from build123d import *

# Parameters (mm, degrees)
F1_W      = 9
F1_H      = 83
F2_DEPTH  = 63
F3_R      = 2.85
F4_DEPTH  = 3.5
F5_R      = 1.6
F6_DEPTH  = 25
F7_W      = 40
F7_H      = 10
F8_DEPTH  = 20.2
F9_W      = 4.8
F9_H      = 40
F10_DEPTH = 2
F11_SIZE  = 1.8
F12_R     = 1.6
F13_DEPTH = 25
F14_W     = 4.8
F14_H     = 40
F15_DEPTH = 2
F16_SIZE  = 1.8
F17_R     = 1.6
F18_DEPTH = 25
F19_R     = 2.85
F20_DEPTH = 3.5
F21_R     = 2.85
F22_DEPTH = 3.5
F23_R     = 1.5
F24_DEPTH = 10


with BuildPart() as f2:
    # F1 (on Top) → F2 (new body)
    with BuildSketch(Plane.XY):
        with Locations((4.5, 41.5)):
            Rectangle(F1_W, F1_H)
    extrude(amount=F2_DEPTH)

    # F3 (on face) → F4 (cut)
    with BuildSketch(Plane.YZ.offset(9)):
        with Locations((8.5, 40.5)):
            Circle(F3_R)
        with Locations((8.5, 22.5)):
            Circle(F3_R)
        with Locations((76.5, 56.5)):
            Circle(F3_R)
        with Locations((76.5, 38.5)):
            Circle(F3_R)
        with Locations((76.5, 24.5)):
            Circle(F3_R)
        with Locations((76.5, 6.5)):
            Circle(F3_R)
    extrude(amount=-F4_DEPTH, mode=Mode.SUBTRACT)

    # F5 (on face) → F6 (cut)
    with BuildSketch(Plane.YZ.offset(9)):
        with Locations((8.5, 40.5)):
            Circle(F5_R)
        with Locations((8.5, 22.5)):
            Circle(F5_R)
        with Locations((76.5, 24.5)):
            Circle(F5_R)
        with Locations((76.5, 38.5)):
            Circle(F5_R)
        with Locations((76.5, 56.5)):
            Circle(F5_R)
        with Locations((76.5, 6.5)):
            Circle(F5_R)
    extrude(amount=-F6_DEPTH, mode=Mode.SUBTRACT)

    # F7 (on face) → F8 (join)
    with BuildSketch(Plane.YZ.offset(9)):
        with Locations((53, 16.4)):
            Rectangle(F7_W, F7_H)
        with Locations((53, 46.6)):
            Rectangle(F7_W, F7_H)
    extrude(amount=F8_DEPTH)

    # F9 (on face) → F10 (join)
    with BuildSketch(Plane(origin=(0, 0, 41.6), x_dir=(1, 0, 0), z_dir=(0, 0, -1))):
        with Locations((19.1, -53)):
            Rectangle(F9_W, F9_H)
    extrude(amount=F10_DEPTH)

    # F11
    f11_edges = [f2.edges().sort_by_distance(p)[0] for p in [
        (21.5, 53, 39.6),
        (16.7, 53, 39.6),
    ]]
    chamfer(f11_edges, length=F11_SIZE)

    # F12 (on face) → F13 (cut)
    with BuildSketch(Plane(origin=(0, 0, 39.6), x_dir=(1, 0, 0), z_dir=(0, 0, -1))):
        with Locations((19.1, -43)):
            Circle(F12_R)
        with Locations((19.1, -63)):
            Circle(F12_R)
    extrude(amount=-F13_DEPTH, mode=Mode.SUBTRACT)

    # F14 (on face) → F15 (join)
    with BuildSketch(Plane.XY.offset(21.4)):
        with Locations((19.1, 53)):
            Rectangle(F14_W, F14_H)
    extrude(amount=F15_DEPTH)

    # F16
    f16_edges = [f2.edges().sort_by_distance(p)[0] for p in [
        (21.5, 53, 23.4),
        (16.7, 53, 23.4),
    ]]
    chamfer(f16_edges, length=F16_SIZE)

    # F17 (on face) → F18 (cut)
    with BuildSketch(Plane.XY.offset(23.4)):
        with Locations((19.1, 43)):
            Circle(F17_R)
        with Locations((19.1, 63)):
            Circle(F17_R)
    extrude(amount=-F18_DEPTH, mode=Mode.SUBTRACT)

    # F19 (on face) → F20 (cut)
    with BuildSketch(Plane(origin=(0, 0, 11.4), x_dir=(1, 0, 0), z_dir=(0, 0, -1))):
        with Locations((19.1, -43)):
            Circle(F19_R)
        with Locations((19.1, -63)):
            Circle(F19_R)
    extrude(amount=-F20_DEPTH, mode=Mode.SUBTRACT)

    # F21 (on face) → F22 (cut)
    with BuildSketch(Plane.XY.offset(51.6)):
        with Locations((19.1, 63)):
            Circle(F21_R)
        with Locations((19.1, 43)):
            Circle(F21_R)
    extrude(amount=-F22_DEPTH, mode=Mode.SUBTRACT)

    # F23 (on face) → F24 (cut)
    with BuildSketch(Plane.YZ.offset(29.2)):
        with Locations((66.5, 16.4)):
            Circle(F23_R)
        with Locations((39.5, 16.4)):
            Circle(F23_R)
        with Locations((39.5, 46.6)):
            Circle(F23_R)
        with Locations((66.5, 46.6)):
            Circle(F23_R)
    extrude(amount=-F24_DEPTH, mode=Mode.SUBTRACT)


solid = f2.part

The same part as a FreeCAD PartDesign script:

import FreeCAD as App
import Part
import Sketcher
from FreeCAD import Vector


def edges_at(feature, points):
    """Names of the edges that pass closest to the given points."""
    edges = feature.Shape.Edges
    near = lambda p: min(range(len(edges)), key=lambda i: edges[i].distToShape(Part.Vertex(*p))[0])
    return sorted({f"Edge{near(p) + 1}" for p in points})


def add_polygon(sketch, points):
    """Adds a closed chain of lines whose ends are joined by coincident constraints."""
    first, n = sketch.GeometryCount, len(points)
    for a, b in zip(points, points[1:] + points[:1]):
        sketch.addGeometry(Part.LineSegment(App.Vector(*a, 0), App.Vector(*b, 0)), False)
    for i in range(n):
        sketch.addConstraint(Sketcher.Constraint("Coincident", first + i, 2, first + (i + 1) % n, 1))

doc = App.newDocument("Part")
body = doc.addObject("PartDesign::Body", "Body")

# Sketch on XY plane
sketch1 = body.newObject("Sketcher::SketchObject", "Sketch")
sketch1.AttachmentSupport = (doc.getObject("XY_Plane"), [""])
sketch1.MapMode = "FlatFace"
add_polygon(sketch1, [(0, 83), (0, 0), (9, 0), (9, 83)])  # lines 0-3
sketch1.addConstraint([
    Sketcher.Constraint("Vertical", 0),
    Sketcher.Constraint("Horizontal", 1),
    Sketcher.Constraint("Vertical", 2),
    Sketcher.Constraint("Horizontal", 3),
    Sketcher.Constraint("Coincident", 0, 2, -1, 1),
    Sketcher.Constraint("DistanceX", 1, 1, 1, 2, 9.0),
    Sketcher.Constraint("DistanceY", 0, 2, 0, 1, 83.0),
])
pad1 = body.newObject("PartDesign::Pad", "Pad")
pad1.Profile = sketch1
pad1.Length = 63

# Sketch on YZ plane
sketch2 = body.newObject("Sketcher::SketchObject", "Sketch001")
sketch2.AttachmentSupport = (doc.getObject("YZ_Plane"), [""])
sketch2.MapMode = "FlatFace"
sketch2.AttachmentOffset = App.Placement(Vector(0, 0, 9), App.Rotation())
sketch2.addGeometry([
    Part.Circle(Vector(8.5, 40.5, 0), Vector(0, 0, 1), 2.85),  # 0
    Part.Circle(Vector(8.5, 22.5, 0), Vector(0, 0, 1), 2.85),  # 1
    Part.Circle(Vector(76.5, 56.5, 0), Vector(0, 0, 1), 2.85),  # 2
    Part.Circle(Vector(76.5, 38.5, 0), Vector(0, 0, 1), 2.85),  # 3
    Part.Circle(Vector(76.5, 24.5, 0), Vector(0, 0, 1), 2.85),  # 4
    Part.Circle(Vector(76.5, 6.5, 0), Vector(0, 0, 1), 2.85),  # 5
], False)
sketch2.addConstraint([
    Sketcher.Constraint("Equal", 0, 1),
    Sketcher.Constraint("Equal", 1, 2),
    Sketcher.Constraint("Equal", 2, 3),
    Sketcher.Constraint("Equal", 3, 4),
    Sketcher.Constraint("Equal", 4, 5),
    Sketcher.Constraint("Vertical", 0, 3, 1, 3),
    Sketcher.Constraint("Vertical", 2, 3, 3, 3),
    Sketcher.Constraint("Vertical", 3, 3, 4, 3),
    Sketcher.Constraint("Vertical", 4, 3, 5, 3),
    Sketcher.Constraint("Diameter", 0, 5.7),
    Sketcher.Constraint("DistanceY", 1, 3, 0, 3, 18.0),
    Sketcher.Constraint("DistanceX", 0, 3, 2, 3, 68.0),
    Sketcher.Constraint("DistanceY", 0, 3, 2, 3, 16.0),
    Sketcher.Constraint("DistanceY", 3, 3, 2, 3, 18.0),
    Sketcher.Constraint("DistanceY", 4, 3, 3, 3, 14.0),
    Sketcher.Constraint("DistanceY", 5, 3, 4, 3, 18.0),
    Sketcher.Constraint("DistanceX", -1, 1, 0, 3, 8.5),
    Sketcher.Constraint("DistanceY", -1, 1, 0, 3, 40.5),
])
pocket1 = body.newObject("PartDesign::Pocket", "Pocket")
pocket1.Profile = sketch2
pocket1.Length = 3.5

# Sketch on YZ plane
sketch3 = body.newObject("Sketcher::SketchObject", "Sketch002")
sketch3.AttachmentSupport = (doc.getObject("YZ_Plane"), [""])
sketch3.MapMode = "FlatFace"
sketch3.AttachmentOffset = App.Placement(Vector(0, 0, 9), App.Rotation())
sketch3.addGeometry([
    Part.Circle(Vector(8.5, 40.5, 0), Vector(0, 0, 1), 1.6),  # 0
    Part.Circle(Vector(8.5, 22.5, 0), Vector(0, 0, 1), 1.6),  # 1
    Part.Circle(Vector(76.5, 24.5, 0), Vector(0, 0, 1), 1.6),  # 2
    Part.Circle(Vector(76.5, 38.5, 0), Vector(0, 0, 1), 1.6),  # 3
    Part.Circle(Vector(76.5, 56.5, 0), Vector(0, 0, 1), 1.6),  # 4
    Part.Circle(Vector(76.5, 6.5, 0), Vector(0, 0, 1), 1.6),  # 5
], False)
sketch3.addConstraint([
    Sketcher.Constraint("Equal", 0, 1),
    Sketcher.Constraint("Equal", 1, 2),
    Sketcher.Constraint("Equal", 2, 3),
    Sketcher.Constraint("Equal", 3, 4),
    Sketcher.Constraint("Equal", 4, 5),
    Sketcher.Constraint("Vertical", 0, 3, 1, 3),
    Sketcher.Constraint("Vertical", 2, 3, 3, 3),
    Sketcher.Constraint("Vertical", 3, 3, 4, 3),
    Sketcher.Constraint("Vertical", 4, 3, 5, 3),
    Sketcher.Constraint("Diameter", 0, 3.2),
    Sketcher.Constraint("DistanceY", 1, 3, 0, 3, 18.0),
    Sketcher.Constraint("DistanceX", 1, 3, 2, 3, 68.0),
    Sketcher.Constraint("DistanceY", 1, 3, 2, 3, 2.0),
    Sketcher.Constraint("DistanceY", 2, 3, 3, 3, 14.0),
    Sketcher.Constraint("DistanceY", 3, 3, 4, 3, 18.0),
    Sketcher.Constraint("DistanceY", 5, 3, 2, 3, 18.0),
    Sketcher.Constraint("DistanceX", -1, 1, 0, 3, 8.5),
    Sketcher.Constraint("DistanceY", -1, 1, 0, 3, 40.5),
])
pocket2 = body.newObject("PartDesign::Pocket", "Pocket001")
pocket2.Profile = sketch3
pocket2.Length = 25

# Sketch on YZ plane
sketch4 = body.newObject("Sketcher::SketchObject", "Sketch003")
sketch4.AttachmentSupport = (doc.getObject("YZ_Plane"), [""])
sketch4.MapMode = "FlatFace"
sketch4.AttachmentOffset = App.Placement(Vector(0, 0, 9), App.Rotation())
add_polygon(sketch4, [(33, 21.4), (33, 11.4), (73, 11.4), (73, 21.4)])  # lines 0-3
add_polygon(sketch4, [(33, 51.6), (33, 41.6), (73, 41.6), (73, 51.6)])  # lines 4-7
sketch4.addConstraint([
    Sketcher.Constraint("Vertical", 0),
    Sketcher.Constraint("Horizontal", 1),
    Sketcher.Constraint("Vertical", 2),
    Sketcher.Constraint("Horizontal", 3),
    Sketcher.Constraint("Vertical", 4),
    Sketcher.Constraint("Horizontal", 5),
    Sketcher.Constraint("Vertical", 6),
    Sketcher.Constraint("Horizontal", 7),
    Sketcher.Constraint("Vertical", 3, 2, 4, 2),
    Sketcher.Constraint("Vertical", 2, 2, 5, 2),
    Sketcher.Constraint("Equal", 2, 4),
    Sketcher.Constraint("DistanceX", 1, 1, 1, 2, 40.0),
    Sketcher.Constraint("DistanceY", 0, 2, 0, 1, 10.0),
    Sketcher.Constraint("DistanceX", -1, 1, 0, 2, 33.0),
    Sketcher.Constraint("DistanceY", -1, 1, 0, 2, 11.4),
    Sketcher.Constraint("DistanceY", -1, 1, 4, 2, 41.6),
])
pad2 = body.newObject("PartDesign::Pad", "Pad001")
pad2.Profile = sketch4
pad2.Length = 20.2

# Sketch on XY plane
sketch5 = body.newObject("Sketcher::SketchObject", "Sketch004")
sketch5.AttachmentSupport = (doc.getObject("XY_Plane"), [""])
sketch5.MapMode = "FlatFace"
sketch5.AttachmentOffset = App.Placement(Vector(0, 0, 41.6), App.Rotation())
add_polygon(sketch5, [(16.7, 33), (16.7, 73), (21.5, 73), (21.5, 33)])  # lines 0-3
sketch5.addConstraint([
    Sketcher.Constraint("Vertical", 0),
    Sketcher.Constraint("Horizontal", 1),
    Sketcher.Constraint("Vertical", 2),
    Sketcher.Constraint("Horizontal", 3),
    Sketcher.Constraint("DistanceY", 0, 1, 0, 2, 40.0),
    Sketcher.Constraint("DistanceX", 1, 1, 1, 2, 4.8),
    Sketcher.Constraint("DistanceY", -1, 1, 0, 2, 73.0),
    Sketcher.Constraint("DistanceX", -1, 1, 0, 2, 16.7),
])
pad3 = body.newObject("PartDesign::Pad", "Pad002")
pad3.Profile = sketch5
pad3.Length = 2
pad3.Reversed = True
doc.recompute()

chamfer = body.newObject("PartDesign::Chamfer", "Chamfer")
chamfer.Base = (pad3, edges_at(pad3, [(21.5, 53, 39.6), (16.7, 53, 39.6)]))
chamfer.Size = 1.8

# Sketch on XY plane
sketch6 = body.newObject("Sketcher::SketchObject", "Sketch005")
sketch6.AttachmentSupport = (doc.getObject("XY_Plane"), [""])
sketch6.MapMode = "FlatFace"
sketch6.AttachmentOffset = App.Placement(Vector(0, 0, 39.6), App.Rotation())
sketch6.addGeometry([
    Part.Circle(Vector(19.1, 43, 0), Vector(0, 0, 1), 1.6),
    Part.Circle(Vector(19.1, 63, 0), Vector(0, 0, 1), 1.6),
], False)
sketch6.addConstraint([
    Sketcher.Constraint("Equal", 0, 1),
    Sketcher.Constraint("Vertical", 0, 3, 1, 3),
    Sketcher.Constraint("Diameter", 0, 3.2),
    Sketcher.Constraint("DistanceY", -1, 1, 0, 3, 43.0),
    Sketcher.Constraint("DistanceY", -1, 1, 1, 3, 63.0),
    Sketcher.Constraint("DistanceX", -1, 1, 0, 3, 19.1),
])
pocket3 = body.newObject("PartDesign::Pocket", "Pocket002")
pocket3.Profile = sketch6
pocket3.Length = 25
pocket3.Reversed = True

# Sketch on XY plane
sketch7 = body.newObject("Sketcher::SketchObject", "Sketch006")
sketch7.AttachmentSupport = (doc.getObject("XY_Plane"), [""])
sketch7.MapMode = "FlatFace"
sketch7.AttachmentOffset = App.Placement(Vector(0, 0, 21.4), App.Rotation())
add_polygon(sketch7, [(16.7, 73), (16.7, 33), (21.5, 33), (21.5, 73)])  # lines 0-3
sketch7.addConstraint([
    Sketcher.Constraint("Vertical", 0),
    Sketcher.Constraint("Horizontal", 1),
    Sketcher.Constraint("Vertical", 2),
    Sketcher.Constraint("Horizontal", 3),
    Sketcher.Constraint("DistanceY", 0, 2, 0, 1, 40.0),
    Sketcher.Constraint("DistanceX", 1, 1, 1, 2, 4.8),
    Sketcher.Constraint("DistanceY", -1, 1, 0, 2, 33.0),
    Sketcher.Constraint("DistanceX", -1, 1, 0, 2, 16.7),
])
pad4 = body.newObject("PartDesign::Pad", "Pad003")
pad4.Profile = sketch7
pad4.Length = 2
doc.recompute()

chamfer2 = body.newObject("PartDesign::Chamfer", "Chamfer001")
chamfer2.Base = (pad4, edges_at(pad4, [(21.5, 53, 23.4), (16.7, 53, 23.4)]))
chamfer2.Size = 1.8

# Sketch on XY plane
sketch8 = body.newObject("Sketcher::SketchObject", "Sketch007")
sketch8.AttachmentSupport = (doc.getObject("XY_Plane"), [""])
sketch8.MapMode = "FlatFace"
sketch8.AttachmentOffset = App.Placement(Vector(0, 0, 23.4), App.Rotation())
sketch8.addGeometry([
    Part.Circle(Vector(19.1, 43, 0), Vector(0, 0, 1), 1.6),
    Part.Circle(Vector(19.1, 63, 0), Vector(0, 0, 1), 1.6),
], False)
sketch8.addConstraint([
    Sketcher.Constraint("Equal", 0, 1),
    Sketcher.Constraint("Vertical", 0, 3, 1, 3),
    Sketcher.Constraint("Diameter", 0, 3.2),
    Sketcher.Constraint("DistanceY", -1, 1, 0, 3, 43.0),
    Sketcher.Constraint("DistanceY", -1, 1, 1, 3, 63.0),
    Sketcher.Constraint("DistanceX", -1, 1, 0, 3, 19.1),
])
pocket4 = body.newObject("PartDesign::Pocket", "Pocket003")
pocket4.Profile = sketch8
pocket4.Length = 25

# Sketch on XY plane
sketch9 = body.newObject("Sketcher::SketchObject", "Sketch008")
sketch9.AttachmentSupport = (doc.getObject("XY_Plane"), [""])
sketch9.MapMode = "FlatFace"
sketch9.AttachmentOffset = App.Placement(Vector(0, 0, 11.4), App.Rotation())
sketch9.addGeometry([
    Part.Circle(Vector(19.1, 43, 0), Vector(0, 0, 1), 2.85),
    Part.Circle(Vector(19.1, 63, 0), Vector(0, 0, 1), 2.85),
], False)
sketch9.addConstraint([
    Sketcher.Constraint("Equal", 0, 1),
    Sketcher.Constraint("Vertical", 0, 3, 1, 3),
    Sketcher.Constraint("Diameter", 0, 5.7),
    Sketcher.Constraint("DistanceY", -1, 1, 0, 3, 43.0),
    Sketcher.Constraint("DistanceY", -1, 1, 1, 3, 63.0),
    Sketcher.Constraint("DistanceX", -1, 1, 0, 3, 19.1),
])
pocket5 = body.newObject("PartDesign::Pocket", "Pocket004")
pocket5.Profile = sketch9
pocket5.Length = 3.5
pocket5.Reversed = True

# Sketch on XY plane
sketch10 = body.newObject("Sketcher::SketchObject", "Sketch009")
sketch10.AttachmentSupport = (doc.getObject("XY_Plane"), [""])
sketch10.MapMode = "FlatFace"
sketch10.AttachmentOffset = App.Placement(Vector(0, 0, 51.6), App.Rotation())
sketch10.addGeometry([
    Part.Circle(Vector(19.1, 63, 0), Vector(0, 0, 1), 2.85),
    Part.Circle(Vector(19.1, 43, 0), Vector(0, 0, 1), 2.85),
], False)
sketch10.addConstraint([
    Sketcher.Constraint("Equal", 0, 1),
    Sketcher.Constraint("Vertical", 0, 3, 1, 3),
    Sketcher.Constraint("Diameter", 0, 5.7),
    Sketcher.Constraint("DistanceY", -1, 1, 0, 3, 63.0),
    Sketcher.Constraint("DistanceY", -1, 1, 1, 3, 43.0),
    Sketcher.Constraint("DistanceX", -1, 1, 0, 3, 19.1),
])
pocket6 = body.newObject("PartDesign::Pocket", "Pocket005")
pocket6.Profile = sketch10
pocket6.Length = 3.5

# Sketch on YZ plane
sketch11 = body.newObject("Sketcher::SketchObject", "Sketch010")
sketch11.AttachmentSupport = (doc.getObject("YZ_Plane"), [""])
sketch11.MapMode = "FlatFace"
sketch11.AttachmentOffset = App.Placement(Vector(0, 0, 29.2), App.Rotation())
sketch11.addGeometry([
    Part.Circle(Vector(66.5, 16.4, 0), Vector(0, 0, 1), 1.5),
    Part.Circle(Vector(39.5, 16.4, 0), Vector(0, 0, 1), 1.5),
    Part.Circle(Vector(39.5, 46.6, 0), Vector(0, 0, 1), 1.5),
    Part.Circle(Vector(66.5, 46.6, 0), Vector(0, 0, 1), 1.5),
], False)
sketch11.addConstraint([
    Sketcher.Constraint("Equal", 0, 1),
    Sketcher.Constraint("Equal", 1, 2),
    Sketcher.Constraint("Equal", 2, 3),
    Sketcher.Constraint("Horizontal", 0, 3, 1, 3),
    Sketcher.Constraint("Horizontal", 2, 3, 3, 3),
    Sketcher.Constraint("Vertical", 1, 3, 2, 3),
    Sketcher.Constraint("Vertical", 0, 3, 3, 3),
    Sketcher.Constraint("Diameter", 0, 3.0),
    Sketcher.Constraint("DistanceX", 1, 3, 0, 3, 27.0),
    Sketcher.Constraint("DistanceX", -1, 1, 0, 3, 66.5),
    Sketcher.Constraint("DistanceY", -1, 1, 0, 3, 16.4),
    Sketcher.Constraint("DistanceY", -1, 1, 2, 3, 46.6),
])
pocket7 = body.newObject("PartDesign::Pocket", "Pocket006")
pocket7.Profile = sketch11
pocket7.Length = 10

doc.recompute()
